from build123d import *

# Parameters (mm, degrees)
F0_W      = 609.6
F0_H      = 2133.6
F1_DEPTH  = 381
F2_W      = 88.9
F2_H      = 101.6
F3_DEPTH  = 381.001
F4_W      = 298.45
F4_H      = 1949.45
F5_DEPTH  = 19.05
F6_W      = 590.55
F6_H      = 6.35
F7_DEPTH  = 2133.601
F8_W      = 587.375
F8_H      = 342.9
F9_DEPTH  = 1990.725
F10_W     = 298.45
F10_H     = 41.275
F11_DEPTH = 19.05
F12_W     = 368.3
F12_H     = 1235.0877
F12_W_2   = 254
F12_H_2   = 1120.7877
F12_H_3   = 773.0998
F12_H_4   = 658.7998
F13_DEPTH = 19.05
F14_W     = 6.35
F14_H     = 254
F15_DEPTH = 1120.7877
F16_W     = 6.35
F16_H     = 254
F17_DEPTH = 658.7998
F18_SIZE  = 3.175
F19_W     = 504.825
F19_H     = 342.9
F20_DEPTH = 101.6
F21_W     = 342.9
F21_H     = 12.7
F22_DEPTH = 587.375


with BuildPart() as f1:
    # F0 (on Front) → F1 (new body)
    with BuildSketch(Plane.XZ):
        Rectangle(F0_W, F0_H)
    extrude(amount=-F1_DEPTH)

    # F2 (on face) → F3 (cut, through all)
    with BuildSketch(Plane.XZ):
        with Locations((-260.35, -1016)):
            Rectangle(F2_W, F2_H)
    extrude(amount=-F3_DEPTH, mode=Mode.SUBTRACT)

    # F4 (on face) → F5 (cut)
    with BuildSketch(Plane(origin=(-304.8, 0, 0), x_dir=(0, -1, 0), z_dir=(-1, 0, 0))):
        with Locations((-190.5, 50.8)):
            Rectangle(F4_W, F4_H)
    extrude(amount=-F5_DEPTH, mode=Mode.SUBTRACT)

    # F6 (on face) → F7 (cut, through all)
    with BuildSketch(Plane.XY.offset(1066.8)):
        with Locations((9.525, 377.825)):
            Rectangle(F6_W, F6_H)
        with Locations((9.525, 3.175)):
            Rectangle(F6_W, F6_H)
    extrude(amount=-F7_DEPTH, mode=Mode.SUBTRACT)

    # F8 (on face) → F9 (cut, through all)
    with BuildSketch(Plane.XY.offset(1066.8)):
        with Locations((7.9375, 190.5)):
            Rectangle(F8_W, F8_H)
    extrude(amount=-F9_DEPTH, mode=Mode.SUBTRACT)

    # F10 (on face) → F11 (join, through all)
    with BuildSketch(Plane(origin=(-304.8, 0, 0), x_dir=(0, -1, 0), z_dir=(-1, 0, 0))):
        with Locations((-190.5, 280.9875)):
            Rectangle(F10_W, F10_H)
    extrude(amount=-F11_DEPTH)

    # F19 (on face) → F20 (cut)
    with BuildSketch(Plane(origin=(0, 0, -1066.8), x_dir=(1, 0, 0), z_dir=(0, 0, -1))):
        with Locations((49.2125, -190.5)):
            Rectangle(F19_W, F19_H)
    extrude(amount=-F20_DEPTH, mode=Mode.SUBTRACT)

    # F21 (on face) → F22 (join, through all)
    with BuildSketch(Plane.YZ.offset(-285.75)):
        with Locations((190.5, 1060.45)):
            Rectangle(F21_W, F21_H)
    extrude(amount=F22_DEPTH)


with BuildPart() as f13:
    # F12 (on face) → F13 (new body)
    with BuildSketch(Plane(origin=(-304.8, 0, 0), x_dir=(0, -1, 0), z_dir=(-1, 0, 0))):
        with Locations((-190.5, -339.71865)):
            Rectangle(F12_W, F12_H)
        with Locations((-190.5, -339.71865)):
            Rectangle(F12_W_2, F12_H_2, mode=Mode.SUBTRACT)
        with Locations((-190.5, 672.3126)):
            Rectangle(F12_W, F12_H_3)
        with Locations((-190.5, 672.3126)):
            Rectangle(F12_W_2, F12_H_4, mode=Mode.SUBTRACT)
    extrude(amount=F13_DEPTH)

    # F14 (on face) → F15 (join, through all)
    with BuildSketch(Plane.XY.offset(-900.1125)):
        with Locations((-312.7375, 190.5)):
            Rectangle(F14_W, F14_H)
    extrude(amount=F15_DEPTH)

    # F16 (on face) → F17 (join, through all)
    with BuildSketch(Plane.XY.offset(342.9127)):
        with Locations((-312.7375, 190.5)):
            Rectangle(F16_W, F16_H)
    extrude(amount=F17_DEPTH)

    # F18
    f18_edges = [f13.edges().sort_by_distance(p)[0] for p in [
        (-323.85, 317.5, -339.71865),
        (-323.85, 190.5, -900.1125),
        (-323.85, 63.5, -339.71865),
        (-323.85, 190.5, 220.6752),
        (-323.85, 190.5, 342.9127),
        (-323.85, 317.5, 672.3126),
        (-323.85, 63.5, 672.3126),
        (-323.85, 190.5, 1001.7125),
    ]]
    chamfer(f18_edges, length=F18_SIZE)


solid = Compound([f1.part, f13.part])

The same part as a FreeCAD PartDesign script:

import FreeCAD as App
import Part
import Sketcher
from FreeCAD import Vector
Q = App.Units.Quantity


def edges_at(feature, points):
    """Names of the edges that pass closest to the given points."""
    edges = feature.Shape.Edges
    near = lambda p: min(range(len(edges)), key=lambda i: edges[i].distToShape(Part.Vertex(*p))[0])
    return sorted({f"Edge{near(p) + 1}" for p in points})


def add_polygon(sketch, points):
    """Adds a closed chain of lines whose ends are joined by coincident constraints."""
    first, n = sketch.GeometryCount, len(points)
    for a, b in zip(points, points[1:] + points[:1]):
        sketch.addGeometry(Part.LineSegment(App.Vector(*a, 0), App.Vector(*b, 0)), False)
    for i in range(n):
        sketch.addConstraint(Sketcher.Constraint("Coincident", first + i, 2, first + (i + 1) % n, 1))

doc = App.newDocument("Part")
body = doc.addObject("PartDesign::Body", "Body")

# Sketch on XZ plane
sketch1 = body.newObject("Sketcher::SketchObject", "Sketch")
sketch1.AttachmentSupport = (doc.getObject("XZ_Plane"), [""])
sketch1.MapMode = "FlatFace"
add_polygon(sketch1, [(-304.8, 1066.8), (-304.8, -1066.8), (304.8, -1066.8), (304.8, 1066.8)])  # lines 0-3
sketch1.addConstraint([
    Sketcher.Constraint("Vertical", 0),
    Sketcher.Constraint("Horizontal", 1),
    Sketcher.Constraint("Vertical", 2),
    Sketcher.Constraint("Horizontal", 3),
    Sketcher.Constraint("Symmetric", 0, 2, 2, 2, -1, 1),
    Sketcher.Constraint("DistanceX", 1, 1, 1, 2, Q("24 in")),
    Sketcher.Constraint("DistanceY", 0, 2, 0, 1, Q("84 in")),
])
pad1 = body.newObject("PartDesign::Pad", "Pad")
pad1.Profile = sketch1
pad1.Length = Q("15 in")
pad1.Reversed = True

# Sketch on XZ plane
sketch2 = body.newObject("Sketcher::SketchObject", "Sketch001")
sketch2.AttachmentSupport = (doc.getObject("XZ_Plane"), [""])
sketch2.MapMode = "FlatFace"
add_polygon(sketch2, [(-304.8, -965.2), (-304.8, -1066.8), (-215.9, -1066.8), (-215.9, -965.2)])  # lines 0-3
sketch2.addConstraint([
    Sketcher.Constraint("Vertical", 0),
    Sketcher.Constraint("Horizontal", 1),
    Sketcher.Constraint("Vertical", 2),
    Sketcher.Constraint("Horizontal", 3),
    Sketcher.Constraint("DistanceY", 0, 2, 0, 1, Q("4 in")),
    Sketcher.Constraint("DistanceX", 1, 1, 1, 2, Q("3.5 in")),
    Sketcher.Constraint("DistanceX", 0, 2, -1, 1, Q("12 in")),
    Sketcher.Constraint("DistanceY", 0, 2, -1, 1, Q("42 in")),
])
pocket1 = body.newObject("PartDesign::Pocket", "Pocket")
pocket1.Profile = sketch2
pocket1.Type = "ThroughAll"

# Sketch on YZ plane
sketch3 = body.newObject("Sketcher::SketchObject", "Sketch002")
sketch3.AttachmentSupport = (doc.getObject("YZ_Plane"), [""])
sketch3.MapMode = "FlatFace"
sketch3.AttachmentOffset = App.Placement(Vector(0, 0, -12 * 25.4), App.Rotation())
add_polygon(sketch3, [(339.725, 1025.525), (339.725, -923.925), (41.275, -923.925), (41.275, 1025.525)])  # lines 0-3
sketch3.addConstraint([
    Sketcher.Constraint("Vertical", 0),
    Sketcher.Constraint("Horizontal", 1),
    Sketcher.Constraint("Vertical", 2),
    Sketcher.Constraint("Horizontal", 3),
    Sketcher.Constraint("DistanceX", 1, 2, 1, 1, Q("11.75 in")),
    Sketcher.Constraint("DistanceY", 0, 2, 0, 1, Q("76.75 in")),
    Sketcher.Constraint("DistanceX", -1, 1, 0, 2, Q("13.375 in")),
    Sketcher.Constraint("DistanceY", 0, 2, -1, 1, Q("36.375 in")),
])
pocket2 = body.newObject("PartDesign::Pocket", "Pocket001")
pocket2.Profile = sketch3
pocket2.Length = Q("0.75 in")
pocket2.Reversed = True

# Sketch on XY plane
sketch4 = body.newObject("Sketcher::SketchObject", "Sketch003")
sketch4.AttachmentSupport = (doc.getObject("XY_Plane"), [""])
sketch4.MapMode = "FlatFace"
sketch4.AttachmentOffset = App.Placement(Vector(0, 0, 42 * 25.4), App.Rotation())
add_polygon(sketch4, [(-285.75, 381), (-285.75, 374.65), (304.8, 374.65), (304.8, 381)])  # lines 0-3
add_polygon(sketch4, [(-285.75, 6.35), (-285.75, 0), (304.8, 0), (304.8, 6.35)])  # lines 4-7
sketch4.addConstraint([
    Sketcher.Constraint("Vertical", 0),
    Sketcher.Constraint("Horizontal", 1),
    Sketcher.Constraint("Vertical", 2),
    Sketcher.Constraint("Horizontal", 3),
    Sketcher.Constraint("Vertical", 4),
    Sketcher.Constraint("Horizontal", 5),
    Sketcher.Constraint("Vertical", 6),
    Sketcher.Constraint("Horizontal", 7),
    Sketcher.Constraint("PointOnObject", 4, 2, -1),
    Sketcher.Constraint("Vertical", 3, 2, 4, 2),
    Sketcher.Constraint("Vertical", 2, 2, 5, 2),
    Sketcher.Constraint("Equal", 2, 4),
    Sketcher.Constraint("DistanceX", -1, 1, 1, 2, Q("12 in")),
    Sketcher.Constraint("DistanceY", -1, 1, 2, 2, Q("15 in")),
    Sketcher.Constraint("DistanceX", 1, 1, 1, 2, Q("23.25 in")),
    Sketcher.Constraint("DistanceY", 0, 2, 0, 1, Q("0.25 in")),
])
pocket3 = body.newObject("PartDesign::Pocket", "Pocket002")
pocket3.Profile = sketch4
pocket3.Type = "ThroughAll"

# Sketch on XY plane
sketch5 = body.newObject("Sketcher::SketchObject", "Sketch004")
sketch5.AttachmentSupport = (doc.getObject("XY_Plane"), [""])
sketch5.MapMode = "FlatFace"
sketch5.AttachmentOffset = App.Placement(Vector(0, 0, 42 * 25.4), App.Rotation())
add_polygon(sketch5, [(-285.75, 361.95), (-285.75, 19.05), (301.625, 19.05), (301.625, 361.95)])  # lines 0-3
sketch5.addConstraint([
    Sketcher.Constraint("Vertical", 0),
    Sketcher.Constraint("Horizontal", 1),
    Sketcher.Constraint("Vertical", 2),
    Sketcher.Constraint("Horizontal", 3),
    Sketcher.Constraint("DistanceY", 0, 2, 0, 1, Q("13.5 in")),
    Sketcher.Constraint("DistanceX", 1, 1, 1, 2, Q("23.125 in")),
    Sketcher.Constraint("DistanceX", 0, 2, -1, 1, Q("11.25 in")),
    Sketcher.Constraint("DistanceY", -1, 1, 0, 2, Q("0.75 in")),
])
pocket4 = body.newObject("PartDesign::Pocket", "Pocket003")
pocket4.Profile = sketch5
pocket4.Length = Q("78.375 in")

# Sketch on YZ plane
sketch6 = body.newObject("Sketcher::SketchObject", "Sketch005")
sketch6.AttachmentSupport = (doc.getObject("YZ_Plane"), [""])
sketch6.MapMode = "FlatFace"
sketch6.AttachmentOffset = App.Placement(Vector(0, 0, -12 * 25.4), App.Rotation())
add_polygon(sketch6, [(339.725, 301.625), (339.725, 260.35), (41.275, 260.35), (41.275, 301.625)])  # lines 0-3
sketch6.addConstraint([
    Sketcher.Constraint("Vertical", 0),
    Sketcher.Constraint("Horizontal", 1),
    Sketcher.Constraint("Vertical", 2),
    Sketcher.Constraint("Horizontal", 3),
    Sketcher.Constraint("DistanceX", 1, 2, 1, 1, Q("11.75 in")),
    Sketcher.Constraint("DistanceY", 0, 2, 0, 1, Q("1.625 in")),
    Sketcher.Constraint("DistanceY", -1, 1, 0, 2, Q("10.25 in")),
    Sketcher.Constraint("DistanceX", -1, 1, 0, 2, Q("13.375 in")),
])
pad2 = body.newObject("PartDesign::Pad", "Pad001")
pad2.Profile = sketch6
pad2.Length = Q("0.75 in")

# Sketch on XY plane
sketch7 = body.newObject("Sketcher::SketchObject", "Sketch006")
sketch7.AttachmentSupport = (doc.getObject("XY_Plane"), [""])
sketch7.MapMode = "FlatFace"
sketch7.AttachmentOffset = App.Placement(Vector(0, 0, -42 * 25.4), App.Rotation())
add_polygon(sketch7, [(-203.2, 19.05), (-203.2, 361.95), (301.625, 361.95), (301.625, 19.05)])  # lines 0-3
sketch7.addConstraint([
    Sketcher.Constraint("Vertical", 0),
    Sketcher.Constraint("Horizontal", 1),
    Sketcher.Constraint("Vertical", 2),
    Sketcher.Constraint("Horizontal", 3),
    Sketcher.Constraint("DistanceY", 0, 1, 0, 2, Q("13.5 in")),
    Sketcher.Constraint("DistanceX", 0, 2, -1, 1, Q("8 in")),
    Sketcher.Constraint("DistanceX", 1, 1, 1, 2, Q("19.875 in")),
    Sketcher.Constraint("DistanceY", -1, 1, 0, 2, Q("14.25 in")),
])
pocket5 = body.newObject("PartDesign::Pocket", "Pocket004")
pocket5.Profile = sketch7
pocket5.Length = Q("4 in")
pocket5.Reversed = True

# Sketch on YZ plane
sketch8 = body.newObject("Sketcher::SketchObject", "Sketch007")
sketch8.AttachmentSupport = (doc.getObject("YZ_Plane"), [""])
sketch8.MapMode = "FlatFace"
sketch8.AttachmentOffset = App.Placement(Vector(0, 0, -11.25 * 25.4), App.Rotation())
add_polygon(sketch8, [(19.05, 1066.8), (19.05, 1054.1), (361.95, 1054.1), (361.95, 1066.8)])  # lines 0-3
sketch8.addConstraint([
    Sketcher.Constraint("Vertical", 0),
    Sketcher.Constraint("Horizontal", 1),
    Sketcher.Constraint("Vertical", 2),
    Sketcher.Constraint("Horizontal", 3),
    Sketcher.Constraint("DistanceX", 1, 1, 1, 2, Q("13.5 in")),
    Sketcher.Constraint("DistanceY", 0, 2, 0, 1, Q("0.5 in")),
    Sketcher.Constraint("DistanceY", -1, 1, 2, 2, Q("42 in")),
    Sketcher.Constraint("DistanceX", -1, 1, 0, 2, Q("0.75 in")),
])
pad3 = body.newObject("PartDesign::Pad", "Pad002")
pad3.Profile = sketch8
pad3.Type = "UpToLast"
body2 = doc.addObject("PartDesign::Body", "Body001")
body2.AllowCompound = True

# Sketch on YZ plane
sketch9 = body2.newObject("Sketcher::SketchObject", "Sketch008")
sketch9.AttachmentSupport = (doc.getObject("YZ_Plane001"), [""])
sketch9.MapMode = "FlatFace"
sketch9.AttachmentOffset = App.Placement(Vector(0, 0, -12 * 25.4), App.Rotation())
add_polygon(sketch9, [(374.65, 277.8252), (374.65, -957.2625), (6.35, -957.2625), (6.35, 277.8252)])  # lines 0-3
add_polygon(sketch9, [(63.5, -900.1125), (317.5, -900.1125), (317.5, 220.6752), (63.5, 220.6752)])  # lines 4-7
add_polygon(sketch9, [(374.65, 1058.8625), (374.65, 285.7627), (6.35, 285.7627), (6.35, 1058.8625)])  # lines 8-11
add_polygon(sketch9, [(63.5, 342.9127), (317.5, 342.9127), (317.5, 1001.7125), (63.5, 1001.7125)])  # lines 12-15
sketch9.addConstraint([
    Sketcher.Constraint("Vertical", 0),
    Sketcher.Constraint("Horizontal", 1),
    Sketcher.Constraint("Vertical", 2),
    Sketcher.Constraint("Horizontal", 3),
    Sketcher.Constraint("Horizontal", 4),
    Sketcher.Constraint("Vertical", 5),
    Sketcher.Constraint("Horizontal", 6),
    Sketcher.Constraint("Vertical", 7),
    Sketcher.Constraint("Vertical", 8),
    Sketcher.Constraint("Horizontal", 9),
    Sketcher.Constraint("Vertical", 10),
    Sketcher.Constraint("Horizontal", 11),
    Sketcher.Constraint("Horizontal", 12),
    Sketcher.Constraint("Vertical", 13),
    Sketcher.Constraint("Horizontal", 14),
    Sketcher.Constraint("Vertical", 15),
    Sketcher.Constraint("Vertical", 3, 2, 8, 2),
    Sketcher.Constraint("Vertical", 2, 2, 9, 2),
    Sketcher.Constraint("Vertical", 5, 2, 12, 2),
    Sketcher.Constraint("Vertical", 7, 2, 14, 2),
    Sketcher.Constraint("DistanceX", 4, 1, 4, 2, Q("10 in")),
    Sketcher.Constraint("DistanceX", 1, 2, 1, 1, Q("14.5 in")),
    Sketcher.Constraint("DistanceX", -1, 1, 4, 2, Q("12.5 in")),
    Sketcher.Constraint("DistanceY", 8, 2, 8, 1, Q("30.437 in")),
    Sketcher.Constraint("DistanceY", 13, 1, 13, 2, Q("25.937 in")),
    Sketcher.Constraint("DistanceX", -1, 1, 0, 2, Q("14.75 in")),
    Sketcher.Constraint("DistanceY", 0, 2, 4, 2, Q("2.25 in")),
    Sketcher.Constraint("DistanceY", 5, 2, 3, 2, Q("2.25 in")),
    Sketcher.Constraint("DistanceY", 8, 2, 12, 2, Q("2.25 in")),
    Sketcher.Constraint("DistanceY", 0, 2, 0, 1, Q("48.6255 in")),
    Sketcher.Constraint("DistanceY", 0, 2, -1, 1, Q("37.6875 in")),
    Sketcher.Constraint("DistanceY", -1, 1, 10, 2, Q("41.6875 in")),
])
pad4 = body2.newObject("PartDesign::Pad", "Pad003")
pad4.Profile = sketch9
pad4.Length = Q("0.75 in")
pad4.Reversed = True

# Sketch on XY plane
sketch10 = body2.newObject("Sketcher::SketchObject", "Sketch009")
sketch10.AttachmentSupport = (doc.getObject("XY_Plane001"), [""])
sketch10.MapMode = "FlatFace"
sketch10.AttachmentOffset = App.Placement(Vector(0, 0, -35.4375 * 25.4), App.Rotation())
add_polygon(sketch10, [(-315.9125, 317.5), (-315.9125, 63.5), (-309.5625, 63.5), (-309.5625, 317.5)])  # lines 0-3
sketch10.addConstraint([
    Sketcher.Constraint("Vertical", 0),
    Sketcher.Constraint("Horizontal", 1),
    Sketcher.Constraint("Vertical", 2),
    Sketcher.Constraint("Horizontal", 3),
    Sketcher.Constraint("DistanceY", 0, 2, 0, 1, Q("10 in")),
    Sketcher.Constraint("DistanceX", 1, 1, 1, 2, Q("0.25 in")),
    Sketcher.Constraint("DistanceY", -1, 1, 0, 2, Q("2.5 in")),
    Sketcher.Constraint("DistanceX", 0, 2, -1, 1, Q("12.4375 in")),
])
pad5 = body2.newObject("PartDesign::Pad", "Pad004")
pad5.Profile = sketch10
pad5.Length = Q("44.1255 in")

# Sketch on XY plane
sketch11 = body2.newObject("Sketcher::SketchObject", "Sketch010")
sketch11.AttachmentSupport = (doc.getObject("XY_Plane001"), [""])
sketch11.MapMode = "FlatFace"
sketch11.AttachmentOffset = App.Placement(Vector(0, 0, 13.5005 * 25.4), App.Rotation())
add_polygon(sketch11, [(-315.9125, 317.5), (-315.9125, 63.5), (-309.5625, 63.5), (-309.5625, 317.5)])  # lines 0-3
sketch11.addConstraint([
    Sketcher.Constraint("Vertical", 0),
    Sketcher.Constraint("Horizontal", 1),
    Sketcher.Constraint("Vertical", 2),
    Sketcher.Constraint("Horizontal", 3),
    Sketcher.Constraint("DistanceY", 0, 2, 0, 1, Q("10 in")),
    Sketcher.Constraint("DistanceX", 1, 1, 1, 2, Q("0.25 in")),
    Sketcher.Constraint("DistanceY", -1, 1, 0, 2, Q("2.5 in")),
    Sketcher.Constraint("DistanceX", 0, 2, -1, 1, Q("12.4375 in")),
])
pad6 = body2.newObject("PartDesign::Pad", "Pad005")
pad6.Profile = sketch11
pad6.Type = "UpToLast"
doc.recompute()

chamfer = body2.newObject("PartDesign::Chamfer", "Chamfer")
chamfer.Base = (pad6, edges_at(pad6, [
    (-323.85, 317.5, -339.719),
    (-323.85, 190.5, -900.112),
    (-323.85, 63.5, -339.719),
    (-323.85, 190.5, 220.675),
    (-323.85, 190.5, 342.913),
    (-323.85, 317.5, 672.313),
    (-323.85, 63.5, 672.313),
    (-323.85, 190.5, 1001.712),
]))
chamfer.Size = Q("0.125 in")

doc.recompute()
